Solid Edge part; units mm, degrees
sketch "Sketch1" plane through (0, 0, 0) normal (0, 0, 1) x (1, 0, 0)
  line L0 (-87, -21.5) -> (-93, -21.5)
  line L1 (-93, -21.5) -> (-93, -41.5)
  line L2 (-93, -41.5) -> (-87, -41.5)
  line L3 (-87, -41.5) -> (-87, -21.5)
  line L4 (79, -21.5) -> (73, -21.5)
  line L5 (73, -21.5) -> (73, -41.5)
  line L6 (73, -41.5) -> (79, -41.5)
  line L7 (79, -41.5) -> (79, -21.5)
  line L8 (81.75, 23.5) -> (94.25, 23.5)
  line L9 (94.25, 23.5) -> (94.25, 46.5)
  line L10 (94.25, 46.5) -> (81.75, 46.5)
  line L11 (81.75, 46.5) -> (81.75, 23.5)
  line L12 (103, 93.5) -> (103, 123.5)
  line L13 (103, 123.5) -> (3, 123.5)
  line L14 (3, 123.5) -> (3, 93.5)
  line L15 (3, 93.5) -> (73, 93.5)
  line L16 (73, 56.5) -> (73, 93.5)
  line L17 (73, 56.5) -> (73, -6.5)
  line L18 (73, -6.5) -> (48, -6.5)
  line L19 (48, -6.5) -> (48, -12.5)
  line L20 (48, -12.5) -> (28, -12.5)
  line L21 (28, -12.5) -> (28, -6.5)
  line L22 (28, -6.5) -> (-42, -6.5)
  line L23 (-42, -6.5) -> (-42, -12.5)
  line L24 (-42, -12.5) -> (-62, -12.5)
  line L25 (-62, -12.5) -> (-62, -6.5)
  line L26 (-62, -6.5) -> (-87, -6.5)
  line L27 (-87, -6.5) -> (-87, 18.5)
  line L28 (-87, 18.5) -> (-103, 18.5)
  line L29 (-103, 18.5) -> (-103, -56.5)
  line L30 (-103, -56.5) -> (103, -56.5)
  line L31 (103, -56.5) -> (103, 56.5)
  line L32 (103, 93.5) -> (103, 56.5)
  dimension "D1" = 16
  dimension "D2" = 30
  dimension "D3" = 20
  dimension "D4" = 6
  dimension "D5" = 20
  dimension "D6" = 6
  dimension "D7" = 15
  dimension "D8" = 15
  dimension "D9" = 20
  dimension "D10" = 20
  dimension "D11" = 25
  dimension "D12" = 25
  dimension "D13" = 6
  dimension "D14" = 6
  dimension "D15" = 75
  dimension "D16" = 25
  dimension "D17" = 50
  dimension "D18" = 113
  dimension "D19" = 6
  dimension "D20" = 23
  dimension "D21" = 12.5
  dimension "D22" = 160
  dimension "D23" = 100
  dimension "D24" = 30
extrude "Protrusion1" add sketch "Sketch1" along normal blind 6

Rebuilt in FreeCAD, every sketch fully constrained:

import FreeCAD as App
import Part
import Sketcher

V = App.Vector
Q = App.Units.Quantity

doc = App.newDocument("Part")
body = doc.addObject("PartDesign::Body", "Body")

# Sketch on XY plane
sketch1 = body.newObject("Sketcher::SketchObject", "Sketch")
sketch1.AttachmentSupport = (doc.getObject("XY_Plane"), [""])
sketch1.MapMode = "FlatFace"
sketch1.addGeometry([
    Part.LineSegment(V(103, -56, 0), V(103, 124, 0)),  # 0
    Part.LineSegment(V(103, 124, 0), V(3, 124, 0)),  # 1
    Part.LineSegment(V(3, 124, 0), V(3, 94, 0)),  # 2
    Part.LineSegment(V(3, 94, 0), V(73, 94, 0)),  # 3
    Part.LineSegment(V(73, 94, 0), V(73, -6, 0)),  # 4
    Part.LineSegment(V(73, -6, 0), V(48, -6, 0)),  # 5
    Part.LineSegment(V(48, -6, 0), V(48, -12, 0)),  # 6
    Part.LineSegment(V(48, -12, 0), V(28, -12, 0)),  # 7
    Part.LineSegment(V(28, -12, 0), V(28, -6, 0)),  # 8
    Part.LineSegment(V(28, -6, 0), V(-42, -6, 0)),  # 9
    Part.LineSegment(V(-42, -6, 0), V(-42, -12, 0)),  # 10
    Part.LineSegment(V(-42, -12, 0), V(-62, -12, 0)),  # 11
    Part.LineSegment(V(-62, -12, 0), V(-62, -6, 0)),  # 12
    Part.LineSegment(V(-62, -6, 0), V(-87, -6, 0)),  # 13
    Part.LineSegment(V(-87, -6, 0), V(-87, 18, 0)),  # 14
    Part.LineSegment(V(-87, 18, 0), V(-103, 18, 0)),  # 15
    Part.LineSegment(V(-103, 18, 0), V(-103, -56, 0)),  # 16
    Part.LineSegment(V(-103, -56, 0), V(103, -56, 0)),  # 17
    Part.LineSegment(V(-93, -22, 0), V(-87, -22, 0)),  # 18
    Part.LineSegment(V(-87, -22, 0), V(-87, -42, 0)),  # 19
    Part.LineSegment(V(-87, -42, 0), V(-93, -42, 0)),  # 20
    Part.LineSegment(V(-93, -42, 0), V(-93, -22, 0)),  # 21
    Part.LineSegment(V(73, -22, 0), V(79, -22, 0)),  # 22
    Part.LineSegment(V(79, -22, 0), V(79, -42, 0)),  # 23
    Part.LineSegment(V(79, -42, 0), V(73, -42, 0)),  # 24
    Part.LineSegment(V(73, -42, 0), V(73, -22, 0)),  # 25
    Part.LineSegment(V(94, 24, 0), V(82, 24, 0)),  # 26
    Part.LineSegment(V(82, 24, 0), V(82, 46, 0)),  # 27
    Part.LineSegment(V(82, 46, 0), V(94, 46, 0)),  # 28
    Part.LineSegment(V(94, 46, 0), V(94, 24, 0)),  # 29
], False)
sketch1.addConstraint([
    Sketcher.Constraint("Coincident", 0, 2, 1, 1),
    Sketcher.Constraint("Coincident", 1, 2, 2, 1),
    Sketcher.Constraint("Coincident", 2, 2, 3, 1),
    Sketcher.Constraint("Coincident", 3, 2, 4, 1),
    Sketcher.Constraint("Coincident", 4, 2, 5, 1),
    Sketcher.Constraint("Coincident", 5, 2, 6, 1),
    Sketcher.Constraint("Coincident", 6, 2, 7, 1),
    Sketcher.Constraint("Coincident", 7, 2, 8, 1),
    Sketcher.Constraint("Coincident", 8, 2, 9, 1),
    Sketcher.Constraint("Coincident", 9, 2, 10, 1),
    Sketcher.Constraint("Coincident", 10, 2, 11, 1),
    Sketcher.Constraint("Coincident", 11, 2, 12, 1),
    Sketcher.Constraint("Coincident", 12, 2, 13, 1),
    Sketcher.Constraint("Coincident", 13, 2, 14, 1),
    Sketcher.Constraint("Coincident", 14, 2, 15, 1),
    Sketcher.Constraint("Coincident", 15, 2, 16, 1),
    Sketcher.Constraint("Coincident", 16, 2, 17, 1),
    Sketcher.Constraint("Coincident", 17, 2, 0, 1),
    Sketcher.Constraint("Coincident", 18, 2, 19, 1),
    Sketcher.Constraint("Coincident", 19, 2, 20, 1),
    Sketcher.Constraint("Coincident", 20, 2, 21, 1),
    Sketcher.Constraint("Coincident", 21, 2, 18, 1),
    Sketcher.Constraint("Coincident", 22, 2, 23, 1),
    Sketcher.Constraint("Coincident", 23, 2, 24, 1),
    Sketcher.Constraint("Coincident", 24, 2, 25, 1),
    Sketcher.Constraint("Coincident", 25, 2, 22, 1),
    Sketcher.Constraint("Coincident", 26, 2, 27, 1),
    Sketcher.Constraint("Coincident", 27, 2, 28, 1),
    Sketcher.Constraint("Coincident", 28, 2, 29, 1),
    Sketcher.Constraint("Coincident", 29, 2, 26, 1),
    Sketcher.Constraint("Vertical", 0),
    Sketcher.Constraint("Horizontal", 1),
    Sketcher.Constraint("Vertical", 2),
    Sketcher.Constraint("Horizontal", 3),
    Sketcher.Constraint("Vertical", 4),
    Sketcher.Constraint("Horizontal", 5),
    Sketcher.Constraint("Vertical", 6),
    Sketcher.Constraint("Horizontal", 7),
    Sketcher.Constraint("Vertical", 8),
    Sketcher.Constraint("Horizontal", 9),
    Sketcher.Constraint("Vertical", 10),
    Sketcher.Constraint("Horizontal", 11),
    Sketcher.Constraint("Vertical", 12),
    Sketcher.Constraint("Horizontal", 13),
    Sketcher.Constraint("Vertical", 14),
    Sketcher.Constraint("Horizontal", 15),
    Sketcher.Constraint("Vertical", 16),
    Sketcher.Constraint("Horizontal", 17),
    Sketcher.Constraint("Horizontal", 18),
    Sketcher.Constraint("Vertical", 19),
    Sketcher.Constraint("Horizontal", 20),
    Sketcher.Constraint("Vertical", 21),
    Sketcher.Constraint("Horizontal", 22),
    Sketcher.Constraint("Vertical", 23),
    Sketcher.Constraint("Horizontal", 24),
    Sketcher.Constraint("Vertical", 25),
    Sketcher.Constraint("Horizontal", 26),
    Sketcher.Constraint("Vertical", 27),
    Sketcher.Constraint("Horizontal", 28),
    Sketcher.Constraint("Vertical", 29),
    Sketcher.Constraint("Horizontal", 5, 2, 8, 2),
    Sketcher.Constraint("Horizontal", 7, 2, 10, 2),
    Sketcher.Constraint("Horizontal", 9, 2, 12, 2),
    Sketcher.Constraint("Horizontal", 21, 2, 22, 2),
    Sketcher.Constraint("Horizontal", 20, 2, 23, 2),
    Sketcher.Constraint("Vertical", 14, 2, 18, 2),
    Sketcher.Constraint("Vertical", 4, 2, 24, 2),
    Sketcher.Constraint("Equal", 3, 9),
    Sketcher.Constraint("Equal", 7, 11),
    Sketcher.Constraint("Equal", 5, 13),
    Sketcher.Constraint("Equal", 20, 22),
    Sketcher.Constraint("Equal", 1, 4),
    Sketcher.Constraint("Equal", 24, 6),
    Sketcher.Constraint("Equal", 13, 14),
    Sketcher.Constraint("Equal", 11, 19),
    Sketcher.Constraint("DistanceX", -1, 1, 0, 2, Q("103 mm")),
    Sketcher.Constraint("DistanceX", -1, 1, 3, 2, Q("73 mm")),
    Sketcher.Constraint("DistanceX", -1, 1, 5, 2, Q("48 mm")),
    Sketcher.Constraint("DistanceX", -1, 1, 7, 2, Q("28 mm")),
    Sketcher.Constraint("DistanceX", 9, 2, -1, 1, Q("42 mm")),
    Sketcher.Constraint("DistanceX", 15, 2, -1, 1, Q("103 mm")),
    Sketcher.Constraint("DistanceX", 20, 2, -1, 1, Q("93 mm")),
    Sketcher.Constraint("DistanceY", 0, 1, 0, 2, Q("180 mm")),
    Sketcher.Constraint("DistanceY", 2, 2, 2, 1, Q("30 mm")),
    Sketcher.Constraint("DistanceY", 27, 1, 27, 2, Q("23 mm")),
    Sketcher.Constraint("DistanceX", -1, 1, 26, 2, Q("81.75 mm")),
    Sketcher.Constraint("DistanceX", -1, 1, 28, 2, Q("94.25 mm")),
    Sketcher.Constraint("DistanceY", 18, 2, 13, 2, Q("15 mm")),
    Sketcher.Constraint("DistanceY", 4, 2, 26, 2, Q("30 mm")),
    Sketcher.Constraint("DistanceY", -1, 1, 0, 2, Q("123.5 mm")),
])
pad1 = body.newObject("PartDesign::Pad", "Pad")
pad1.Profile = sketch1
pad1.Length = 6

doc.recompute()
